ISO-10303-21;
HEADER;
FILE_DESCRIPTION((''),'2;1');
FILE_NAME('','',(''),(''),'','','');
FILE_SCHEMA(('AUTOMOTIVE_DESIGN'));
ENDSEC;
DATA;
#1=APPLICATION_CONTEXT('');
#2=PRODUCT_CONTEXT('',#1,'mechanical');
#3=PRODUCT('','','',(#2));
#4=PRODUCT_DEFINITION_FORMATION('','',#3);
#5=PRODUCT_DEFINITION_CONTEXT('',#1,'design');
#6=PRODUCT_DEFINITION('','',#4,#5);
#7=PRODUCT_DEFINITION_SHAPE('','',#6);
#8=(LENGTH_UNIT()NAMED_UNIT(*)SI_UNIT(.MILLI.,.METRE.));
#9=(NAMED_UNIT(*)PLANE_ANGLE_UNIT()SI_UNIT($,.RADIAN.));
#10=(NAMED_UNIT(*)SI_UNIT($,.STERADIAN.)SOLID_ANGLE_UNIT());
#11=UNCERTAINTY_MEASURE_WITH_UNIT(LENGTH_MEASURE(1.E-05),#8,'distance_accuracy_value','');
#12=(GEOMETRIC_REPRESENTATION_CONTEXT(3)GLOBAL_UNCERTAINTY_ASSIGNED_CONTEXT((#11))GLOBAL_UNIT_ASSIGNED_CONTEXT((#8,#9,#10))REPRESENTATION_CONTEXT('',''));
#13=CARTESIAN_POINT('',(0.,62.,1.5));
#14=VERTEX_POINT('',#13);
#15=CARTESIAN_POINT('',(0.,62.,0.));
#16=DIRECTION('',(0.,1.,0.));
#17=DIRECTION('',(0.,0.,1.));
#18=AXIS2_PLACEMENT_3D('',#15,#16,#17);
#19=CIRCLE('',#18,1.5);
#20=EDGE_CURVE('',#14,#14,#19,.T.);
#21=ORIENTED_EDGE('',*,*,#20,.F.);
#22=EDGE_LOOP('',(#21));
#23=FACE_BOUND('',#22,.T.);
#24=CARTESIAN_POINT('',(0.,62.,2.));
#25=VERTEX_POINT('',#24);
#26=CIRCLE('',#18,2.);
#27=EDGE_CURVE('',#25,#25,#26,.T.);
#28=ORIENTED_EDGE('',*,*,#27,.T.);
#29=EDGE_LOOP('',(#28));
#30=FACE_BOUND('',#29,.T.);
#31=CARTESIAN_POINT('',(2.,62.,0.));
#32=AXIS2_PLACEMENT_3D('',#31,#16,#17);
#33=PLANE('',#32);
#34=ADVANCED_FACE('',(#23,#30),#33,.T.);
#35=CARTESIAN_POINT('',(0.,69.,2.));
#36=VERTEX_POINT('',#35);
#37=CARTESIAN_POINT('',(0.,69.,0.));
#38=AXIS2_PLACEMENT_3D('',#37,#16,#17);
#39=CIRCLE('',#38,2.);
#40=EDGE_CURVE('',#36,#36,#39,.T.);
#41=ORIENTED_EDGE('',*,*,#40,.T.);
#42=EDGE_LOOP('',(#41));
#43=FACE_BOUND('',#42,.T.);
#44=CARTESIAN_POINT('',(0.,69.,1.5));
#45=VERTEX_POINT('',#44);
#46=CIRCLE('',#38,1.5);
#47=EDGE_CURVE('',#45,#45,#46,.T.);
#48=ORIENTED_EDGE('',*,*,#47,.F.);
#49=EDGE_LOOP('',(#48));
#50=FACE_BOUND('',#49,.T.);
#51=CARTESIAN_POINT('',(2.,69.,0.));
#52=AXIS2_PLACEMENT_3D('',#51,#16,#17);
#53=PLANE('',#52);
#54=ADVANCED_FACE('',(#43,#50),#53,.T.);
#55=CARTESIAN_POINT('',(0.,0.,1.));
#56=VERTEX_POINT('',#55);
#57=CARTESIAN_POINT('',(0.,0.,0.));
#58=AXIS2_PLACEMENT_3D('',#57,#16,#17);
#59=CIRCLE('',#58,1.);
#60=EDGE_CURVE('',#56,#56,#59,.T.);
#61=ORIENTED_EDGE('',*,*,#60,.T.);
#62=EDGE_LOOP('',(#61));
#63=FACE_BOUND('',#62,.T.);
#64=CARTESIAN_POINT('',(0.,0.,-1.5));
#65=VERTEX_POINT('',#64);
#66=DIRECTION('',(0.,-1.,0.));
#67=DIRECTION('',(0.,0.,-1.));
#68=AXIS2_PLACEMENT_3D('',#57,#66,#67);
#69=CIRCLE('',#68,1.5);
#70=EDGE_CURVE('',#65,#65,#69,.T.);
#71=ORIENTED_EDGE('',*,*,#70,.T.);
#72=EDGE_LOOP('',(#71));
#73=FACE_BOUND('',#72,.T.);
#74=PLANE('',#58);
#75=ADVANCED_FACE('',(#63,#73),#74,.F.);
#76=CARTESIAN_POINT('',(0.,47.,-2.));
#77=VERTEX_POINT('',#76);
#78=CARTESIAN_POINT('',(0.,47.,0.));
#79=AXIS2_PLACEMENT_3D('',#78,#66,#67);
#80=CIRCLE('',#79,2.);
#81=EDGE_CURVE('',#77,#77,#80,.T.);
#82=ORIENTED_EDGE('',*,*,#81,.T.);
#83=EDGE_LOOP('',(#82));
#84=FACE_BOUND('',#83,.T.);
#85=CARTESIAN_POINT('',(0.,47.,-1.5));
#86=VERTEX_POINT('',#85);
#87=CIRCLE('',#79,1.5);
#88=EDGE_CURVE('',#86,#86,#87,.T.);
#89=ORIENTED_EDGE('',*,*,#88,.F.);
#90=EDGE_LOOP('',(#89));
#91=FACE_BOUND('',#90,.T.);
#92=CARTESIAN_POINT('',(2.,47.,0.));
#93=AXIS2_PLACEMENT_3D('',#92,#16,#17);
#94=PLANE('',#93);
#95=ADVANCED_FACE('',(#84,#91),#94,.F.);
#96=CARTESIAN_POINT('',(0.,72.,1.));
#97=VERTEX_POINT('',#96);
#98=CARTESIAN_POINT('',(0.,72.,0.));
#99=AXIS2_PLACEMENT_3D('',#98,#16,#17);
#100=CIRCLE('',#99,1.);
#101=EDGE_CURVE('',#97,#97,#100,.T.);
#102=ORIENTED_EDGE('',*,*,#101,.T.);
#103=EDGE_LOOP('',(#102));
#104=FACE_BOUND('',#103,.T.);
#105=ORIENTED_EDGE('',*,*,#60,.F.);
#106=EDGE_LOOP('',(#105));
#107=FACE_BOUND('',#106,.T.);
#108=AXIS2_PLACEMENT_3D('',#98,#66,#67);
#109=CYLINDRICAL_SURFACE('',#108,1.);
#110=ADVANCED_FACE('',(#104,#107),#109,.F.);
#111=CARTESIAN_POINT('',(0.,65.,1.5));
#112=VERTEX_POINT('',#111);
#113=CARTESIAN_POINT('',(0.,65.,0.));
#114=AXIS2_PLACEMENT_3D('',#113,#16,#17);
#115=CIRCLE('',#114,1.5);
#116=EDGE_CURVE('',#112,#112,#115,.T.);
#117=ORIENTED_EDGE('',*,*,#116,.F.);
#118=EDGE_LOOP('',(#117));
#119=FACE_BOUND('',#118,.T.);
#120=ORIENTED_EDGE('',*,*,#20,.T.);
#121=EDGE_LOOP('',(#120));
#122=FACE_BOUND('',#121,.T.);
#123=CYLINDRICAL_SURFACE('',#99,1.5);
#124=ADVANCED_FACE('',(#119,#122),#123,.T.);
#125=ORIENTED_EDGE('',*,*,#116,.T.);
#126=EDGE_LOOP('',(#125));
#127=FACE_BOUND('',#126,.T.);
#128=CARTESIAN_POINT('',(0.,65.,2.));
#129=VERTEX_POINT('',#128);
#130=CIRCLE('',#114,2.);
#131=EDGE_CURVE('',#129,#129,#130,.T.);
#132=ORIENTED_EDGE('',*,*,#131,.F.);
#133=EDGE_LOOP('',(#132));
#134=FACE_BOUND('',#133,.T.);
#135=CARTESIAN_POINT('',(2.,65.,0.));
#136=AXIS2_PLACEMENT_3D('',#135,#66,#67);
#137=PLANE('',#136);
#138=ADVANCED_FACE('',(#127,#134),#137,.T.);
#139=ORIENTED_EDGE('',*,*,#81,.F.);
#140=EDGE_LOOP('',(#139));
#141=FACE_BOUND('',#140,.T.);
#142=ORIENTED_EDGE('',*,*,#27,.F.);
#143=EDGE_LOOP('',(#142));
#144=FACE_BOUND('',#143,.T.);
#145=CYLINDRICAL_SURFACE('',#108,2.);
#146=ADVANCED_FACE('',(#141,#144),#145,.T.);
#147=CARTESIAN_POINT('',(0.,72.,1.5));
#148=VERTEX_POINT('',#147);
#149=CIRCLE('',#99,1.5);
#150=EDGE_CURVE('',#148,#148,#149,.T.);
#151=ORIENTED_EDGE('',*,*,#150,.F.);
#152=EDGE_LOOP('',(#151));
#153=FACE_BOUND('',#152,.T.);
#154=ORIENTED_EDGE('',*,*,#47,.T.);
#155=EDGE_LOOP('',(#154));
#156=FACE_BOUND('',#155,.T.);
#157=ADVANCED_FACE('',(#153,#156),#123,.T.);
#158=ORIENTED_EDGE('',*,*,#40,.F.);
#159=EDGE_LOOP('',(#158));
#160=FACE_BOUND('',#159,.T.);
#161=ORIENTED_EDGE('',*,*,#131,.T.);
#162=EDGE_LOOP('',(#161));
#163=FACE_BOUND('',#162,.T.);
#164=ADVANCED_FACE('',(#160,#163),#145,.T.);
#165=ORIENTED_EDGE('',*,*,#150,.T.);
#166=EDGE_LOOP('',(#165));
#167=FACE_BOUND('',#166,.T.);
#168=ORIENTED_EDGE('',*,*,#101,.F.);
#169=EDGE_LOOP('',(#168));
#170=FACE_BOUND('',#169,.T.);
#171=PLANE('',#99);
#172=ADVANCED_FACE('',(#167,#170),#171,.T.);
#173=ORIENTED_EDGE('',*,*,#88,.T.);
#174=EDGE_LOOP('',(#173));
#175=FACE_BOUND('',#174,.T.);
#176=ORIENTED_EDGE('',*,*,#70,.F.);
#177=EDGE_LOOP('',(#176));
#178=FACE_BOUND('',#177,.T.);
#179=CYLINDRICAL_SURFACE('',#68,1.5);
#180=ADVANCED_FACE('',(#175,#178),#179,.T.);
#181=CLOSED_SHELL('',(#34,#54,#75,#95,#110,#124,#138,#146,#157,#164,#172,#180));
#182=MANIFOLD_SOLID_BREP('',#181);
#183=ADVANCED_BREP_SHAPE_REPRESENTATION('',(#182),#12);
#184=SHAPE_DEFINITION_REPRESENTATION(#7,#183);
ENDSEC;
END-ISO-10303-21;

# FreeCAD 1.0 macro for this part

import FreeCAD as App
import Part
import Sketcher
Q = App.Units.Quantity


def add_polygon(sketch, points):
    """Adds a closed chain of lines whose ends are joined by coincident constraints."""
    first, n = sketch.GeometryCount, len(points)
    for a, b in zip(points, points[1:] + points[:1]):
        sketch.addGeometry(Part.LineSegment(App.Vector(*a, 0), App.Vector(*b, 0)), False)
    for i in range(n):
        sketch.addConstraint(Sketcher.Constraint("Coincident", first + i, 2, first + (i + 1) % n, 1))

doc = App.newDocument("Part")
params = doc.addObject("Spreadsheet::Sheet", "Params")
for row, (alias, value) in enumerate([
    ("sketch1_diameter", "4 mm"),
    ("sketch1_diameter2", "2 mm"),
    ("pad1_length", "72 mm"),
    ("sketch2_height", "3 mm"),
    ("sketch2_width", "0.5 mm"),
    ("groove_angle", "360 deg"),
    ("sketch3_height", "47 mm"),
    ("sketch3_width", "0.5 mm"),
    ("groove2_angle", "360 deg"),
], start=1):
    params.set(f"A{row}", alias)
    params.set(f"B{row}", "=" + value)
    params.setAlias(f"B{row}", alias)

body = doc.addObject("PartDesign::Body", "Body")

sketch1 = body.newObject("Sketcher::SketchObject", "Sketch")
sketch1.AttachmentSupport = (doc.getObject("XZ_Plane"), [""])
sketch1.MapMode = "FlatFace"
sketch1.addGeometry(Part.Circle(App.Vector(0, 0, 0), App.Vector(0, 0, 1), 2), False)
sketch1.addGeometry(Part.Circle(App.Vector(0, 0, 0), App.Vector(0, 0, 1), 1), False)
sketch1.addConstraint(Sketcher.Constraint("Coincident", 0, 3, -1, 1))
sketch1.addConstraint(Sketcher.Constraint("Coincident", 1, 3, -1, 1))
sketch1.addConstraint(Sketcher.Constraint("Diameter", 0, Q("4 mm")))
sketch1.addConstraint(Sketcher.Constraint("Diameter", 1, Q("2 mm")))
sketch1.setExpression("Constraints[2]", "Params.sketch1_diameter")
sketch1.setExpression("Constraints[3]", "Params.sketch1_diameter2")
pad1 = body.newObject("PartDesign::Pad", "Pad")
pad1.Profile = sketch1
pad1.setExpression("Length", "Params.pad1_length")
pad1.Reversed = True

sketch2 = body.newObject("Sketcher::SketchObject", "Sketch001")
sketch2.AttachmentSupport = (doc.getObject("XY_Plane"), [""])
sketch2.MapMode = "FlatFace"
add_polygon(sketch2, [(1.5, 72), (1.5, 69), (2, 69), (2, 72)])
add_polygon(sketch2, [(1.5, 65), (1.5, 62), (2, 62), (2, 65)])
sketch2.addConstraint(Sketcher.Constraint("Vertical", 0))
sketch2.addConstraint(Sketcher.Constraint("Horizontal", 1))
sketch2.addConstraint(Sketcher.Constraint("Vertical", 2))
sketch2.addConstraint(Sketcher.Constraint("Horizontal", 3))
sketch2.addConstraint(Sketcher.Constraint("Vertical", 4))
sketch2.addConstraint(Sketcher.Constraint("Horizontal", 5))
sketch2.addConstraint(Sketcher.Constraint("Vertical", 6))
sketch2.addConstraint(Sketcher.Constraint("Horizontal", 7))
sketch2.addConstraint(Sketcher.Constraint("Vertical", 3, 2, 4, 2))
sketch2.addConstraint(Sketcher.Constraint("Vertical", 2, 2, 5, 2))
sketch2.addConstraint(Sketcher.Constraint("Equal", 2, 4))
sketch2.addConstraint(Sketcher.Constraint("DistanceY", 0, 2, 0, 1, Q("3 mm")))
sketch2.addConstraint(Sketcher.Constraint("DistanceX", 1, 1, 1, 2, Q("0.5 mm")))
sketch2.addConstraint(Sketcher.Constraint("DistanceY", -1, 1, 0, 2, Q("69 mm")))
sketch2.addConstraint(Sketcher.Constraint("DistanceX", -1, 1, 1, 2, Q("2 mm")))
sketch2.addConstraint(Sketcher.Constraint("DistanceY", -1, 1, 4, 2, Q("62 mm")))
sketch2.setExpression("Constraints[19]", "Params.sketch2_height")
sketch2.setExpression("Constraints[20]", "Params.sketch2_width")
groove = body.newObject("PartDesign::Groove", "Groove")
groove.Profile = sketch2
groove.ReferenceAxis = (sketch2, ["V_Axis"])
groove.setExpression("Angle", "Params.groove_angle")

sketch3 = body.newObject("Sketcher::SketchObject", "Sketch002")
sketch3.AttachmentSupport = (doc.getObject("XY_Plane"), [""])
sketch3.MapMode = "FlatFace"
add_polygon(sketch3, [(1.5, 47), (1.5, 0), (2, 0), (2, 47)])
sketch3.addConstraint(Sketcher.Constraint("Vertical", 0))
sketch3.addConstraint(Sketcher.Constraint("Horizontal", 1))
sketch3.addConstraint(Sketcher.Constraint("Vertical", 2))
sketch3.addConstraint(Sketcher.Constraint("Horizontal", 3))
sketch3.addConstraint(Sketcher.Constraint("PointOnObject", 0, 2, -1))
sketch3.addConstraint(Sketcher.Constraint("DistanceY", 0, 2, 0, 1, Q("47 mm")))
sketch3.addConstraint(Sketcher.Constraint("DistanceX", 1, 1, 1, 2, Q("0.5 mm")))
sketch3.addConstraint(Sketcher.Constraint("DistanceX", -1, 1, 1, 2, Q("2 mm")))
sketch3.setExpression("Constraints[9]", "Params.sketch3_height")
sketch3.setExpression("Constraints[10]", "Params.sketch3_width")
groove2 = body.newObject("PartDesign::Groove", "Groove001")
groove2.Profile = sketch3
groove2.ReferenceAxis = (sketch3, ["V_Axis"])
groove2.setExpression("Angle", "Params.groove2_angle")

doc.recompute()
